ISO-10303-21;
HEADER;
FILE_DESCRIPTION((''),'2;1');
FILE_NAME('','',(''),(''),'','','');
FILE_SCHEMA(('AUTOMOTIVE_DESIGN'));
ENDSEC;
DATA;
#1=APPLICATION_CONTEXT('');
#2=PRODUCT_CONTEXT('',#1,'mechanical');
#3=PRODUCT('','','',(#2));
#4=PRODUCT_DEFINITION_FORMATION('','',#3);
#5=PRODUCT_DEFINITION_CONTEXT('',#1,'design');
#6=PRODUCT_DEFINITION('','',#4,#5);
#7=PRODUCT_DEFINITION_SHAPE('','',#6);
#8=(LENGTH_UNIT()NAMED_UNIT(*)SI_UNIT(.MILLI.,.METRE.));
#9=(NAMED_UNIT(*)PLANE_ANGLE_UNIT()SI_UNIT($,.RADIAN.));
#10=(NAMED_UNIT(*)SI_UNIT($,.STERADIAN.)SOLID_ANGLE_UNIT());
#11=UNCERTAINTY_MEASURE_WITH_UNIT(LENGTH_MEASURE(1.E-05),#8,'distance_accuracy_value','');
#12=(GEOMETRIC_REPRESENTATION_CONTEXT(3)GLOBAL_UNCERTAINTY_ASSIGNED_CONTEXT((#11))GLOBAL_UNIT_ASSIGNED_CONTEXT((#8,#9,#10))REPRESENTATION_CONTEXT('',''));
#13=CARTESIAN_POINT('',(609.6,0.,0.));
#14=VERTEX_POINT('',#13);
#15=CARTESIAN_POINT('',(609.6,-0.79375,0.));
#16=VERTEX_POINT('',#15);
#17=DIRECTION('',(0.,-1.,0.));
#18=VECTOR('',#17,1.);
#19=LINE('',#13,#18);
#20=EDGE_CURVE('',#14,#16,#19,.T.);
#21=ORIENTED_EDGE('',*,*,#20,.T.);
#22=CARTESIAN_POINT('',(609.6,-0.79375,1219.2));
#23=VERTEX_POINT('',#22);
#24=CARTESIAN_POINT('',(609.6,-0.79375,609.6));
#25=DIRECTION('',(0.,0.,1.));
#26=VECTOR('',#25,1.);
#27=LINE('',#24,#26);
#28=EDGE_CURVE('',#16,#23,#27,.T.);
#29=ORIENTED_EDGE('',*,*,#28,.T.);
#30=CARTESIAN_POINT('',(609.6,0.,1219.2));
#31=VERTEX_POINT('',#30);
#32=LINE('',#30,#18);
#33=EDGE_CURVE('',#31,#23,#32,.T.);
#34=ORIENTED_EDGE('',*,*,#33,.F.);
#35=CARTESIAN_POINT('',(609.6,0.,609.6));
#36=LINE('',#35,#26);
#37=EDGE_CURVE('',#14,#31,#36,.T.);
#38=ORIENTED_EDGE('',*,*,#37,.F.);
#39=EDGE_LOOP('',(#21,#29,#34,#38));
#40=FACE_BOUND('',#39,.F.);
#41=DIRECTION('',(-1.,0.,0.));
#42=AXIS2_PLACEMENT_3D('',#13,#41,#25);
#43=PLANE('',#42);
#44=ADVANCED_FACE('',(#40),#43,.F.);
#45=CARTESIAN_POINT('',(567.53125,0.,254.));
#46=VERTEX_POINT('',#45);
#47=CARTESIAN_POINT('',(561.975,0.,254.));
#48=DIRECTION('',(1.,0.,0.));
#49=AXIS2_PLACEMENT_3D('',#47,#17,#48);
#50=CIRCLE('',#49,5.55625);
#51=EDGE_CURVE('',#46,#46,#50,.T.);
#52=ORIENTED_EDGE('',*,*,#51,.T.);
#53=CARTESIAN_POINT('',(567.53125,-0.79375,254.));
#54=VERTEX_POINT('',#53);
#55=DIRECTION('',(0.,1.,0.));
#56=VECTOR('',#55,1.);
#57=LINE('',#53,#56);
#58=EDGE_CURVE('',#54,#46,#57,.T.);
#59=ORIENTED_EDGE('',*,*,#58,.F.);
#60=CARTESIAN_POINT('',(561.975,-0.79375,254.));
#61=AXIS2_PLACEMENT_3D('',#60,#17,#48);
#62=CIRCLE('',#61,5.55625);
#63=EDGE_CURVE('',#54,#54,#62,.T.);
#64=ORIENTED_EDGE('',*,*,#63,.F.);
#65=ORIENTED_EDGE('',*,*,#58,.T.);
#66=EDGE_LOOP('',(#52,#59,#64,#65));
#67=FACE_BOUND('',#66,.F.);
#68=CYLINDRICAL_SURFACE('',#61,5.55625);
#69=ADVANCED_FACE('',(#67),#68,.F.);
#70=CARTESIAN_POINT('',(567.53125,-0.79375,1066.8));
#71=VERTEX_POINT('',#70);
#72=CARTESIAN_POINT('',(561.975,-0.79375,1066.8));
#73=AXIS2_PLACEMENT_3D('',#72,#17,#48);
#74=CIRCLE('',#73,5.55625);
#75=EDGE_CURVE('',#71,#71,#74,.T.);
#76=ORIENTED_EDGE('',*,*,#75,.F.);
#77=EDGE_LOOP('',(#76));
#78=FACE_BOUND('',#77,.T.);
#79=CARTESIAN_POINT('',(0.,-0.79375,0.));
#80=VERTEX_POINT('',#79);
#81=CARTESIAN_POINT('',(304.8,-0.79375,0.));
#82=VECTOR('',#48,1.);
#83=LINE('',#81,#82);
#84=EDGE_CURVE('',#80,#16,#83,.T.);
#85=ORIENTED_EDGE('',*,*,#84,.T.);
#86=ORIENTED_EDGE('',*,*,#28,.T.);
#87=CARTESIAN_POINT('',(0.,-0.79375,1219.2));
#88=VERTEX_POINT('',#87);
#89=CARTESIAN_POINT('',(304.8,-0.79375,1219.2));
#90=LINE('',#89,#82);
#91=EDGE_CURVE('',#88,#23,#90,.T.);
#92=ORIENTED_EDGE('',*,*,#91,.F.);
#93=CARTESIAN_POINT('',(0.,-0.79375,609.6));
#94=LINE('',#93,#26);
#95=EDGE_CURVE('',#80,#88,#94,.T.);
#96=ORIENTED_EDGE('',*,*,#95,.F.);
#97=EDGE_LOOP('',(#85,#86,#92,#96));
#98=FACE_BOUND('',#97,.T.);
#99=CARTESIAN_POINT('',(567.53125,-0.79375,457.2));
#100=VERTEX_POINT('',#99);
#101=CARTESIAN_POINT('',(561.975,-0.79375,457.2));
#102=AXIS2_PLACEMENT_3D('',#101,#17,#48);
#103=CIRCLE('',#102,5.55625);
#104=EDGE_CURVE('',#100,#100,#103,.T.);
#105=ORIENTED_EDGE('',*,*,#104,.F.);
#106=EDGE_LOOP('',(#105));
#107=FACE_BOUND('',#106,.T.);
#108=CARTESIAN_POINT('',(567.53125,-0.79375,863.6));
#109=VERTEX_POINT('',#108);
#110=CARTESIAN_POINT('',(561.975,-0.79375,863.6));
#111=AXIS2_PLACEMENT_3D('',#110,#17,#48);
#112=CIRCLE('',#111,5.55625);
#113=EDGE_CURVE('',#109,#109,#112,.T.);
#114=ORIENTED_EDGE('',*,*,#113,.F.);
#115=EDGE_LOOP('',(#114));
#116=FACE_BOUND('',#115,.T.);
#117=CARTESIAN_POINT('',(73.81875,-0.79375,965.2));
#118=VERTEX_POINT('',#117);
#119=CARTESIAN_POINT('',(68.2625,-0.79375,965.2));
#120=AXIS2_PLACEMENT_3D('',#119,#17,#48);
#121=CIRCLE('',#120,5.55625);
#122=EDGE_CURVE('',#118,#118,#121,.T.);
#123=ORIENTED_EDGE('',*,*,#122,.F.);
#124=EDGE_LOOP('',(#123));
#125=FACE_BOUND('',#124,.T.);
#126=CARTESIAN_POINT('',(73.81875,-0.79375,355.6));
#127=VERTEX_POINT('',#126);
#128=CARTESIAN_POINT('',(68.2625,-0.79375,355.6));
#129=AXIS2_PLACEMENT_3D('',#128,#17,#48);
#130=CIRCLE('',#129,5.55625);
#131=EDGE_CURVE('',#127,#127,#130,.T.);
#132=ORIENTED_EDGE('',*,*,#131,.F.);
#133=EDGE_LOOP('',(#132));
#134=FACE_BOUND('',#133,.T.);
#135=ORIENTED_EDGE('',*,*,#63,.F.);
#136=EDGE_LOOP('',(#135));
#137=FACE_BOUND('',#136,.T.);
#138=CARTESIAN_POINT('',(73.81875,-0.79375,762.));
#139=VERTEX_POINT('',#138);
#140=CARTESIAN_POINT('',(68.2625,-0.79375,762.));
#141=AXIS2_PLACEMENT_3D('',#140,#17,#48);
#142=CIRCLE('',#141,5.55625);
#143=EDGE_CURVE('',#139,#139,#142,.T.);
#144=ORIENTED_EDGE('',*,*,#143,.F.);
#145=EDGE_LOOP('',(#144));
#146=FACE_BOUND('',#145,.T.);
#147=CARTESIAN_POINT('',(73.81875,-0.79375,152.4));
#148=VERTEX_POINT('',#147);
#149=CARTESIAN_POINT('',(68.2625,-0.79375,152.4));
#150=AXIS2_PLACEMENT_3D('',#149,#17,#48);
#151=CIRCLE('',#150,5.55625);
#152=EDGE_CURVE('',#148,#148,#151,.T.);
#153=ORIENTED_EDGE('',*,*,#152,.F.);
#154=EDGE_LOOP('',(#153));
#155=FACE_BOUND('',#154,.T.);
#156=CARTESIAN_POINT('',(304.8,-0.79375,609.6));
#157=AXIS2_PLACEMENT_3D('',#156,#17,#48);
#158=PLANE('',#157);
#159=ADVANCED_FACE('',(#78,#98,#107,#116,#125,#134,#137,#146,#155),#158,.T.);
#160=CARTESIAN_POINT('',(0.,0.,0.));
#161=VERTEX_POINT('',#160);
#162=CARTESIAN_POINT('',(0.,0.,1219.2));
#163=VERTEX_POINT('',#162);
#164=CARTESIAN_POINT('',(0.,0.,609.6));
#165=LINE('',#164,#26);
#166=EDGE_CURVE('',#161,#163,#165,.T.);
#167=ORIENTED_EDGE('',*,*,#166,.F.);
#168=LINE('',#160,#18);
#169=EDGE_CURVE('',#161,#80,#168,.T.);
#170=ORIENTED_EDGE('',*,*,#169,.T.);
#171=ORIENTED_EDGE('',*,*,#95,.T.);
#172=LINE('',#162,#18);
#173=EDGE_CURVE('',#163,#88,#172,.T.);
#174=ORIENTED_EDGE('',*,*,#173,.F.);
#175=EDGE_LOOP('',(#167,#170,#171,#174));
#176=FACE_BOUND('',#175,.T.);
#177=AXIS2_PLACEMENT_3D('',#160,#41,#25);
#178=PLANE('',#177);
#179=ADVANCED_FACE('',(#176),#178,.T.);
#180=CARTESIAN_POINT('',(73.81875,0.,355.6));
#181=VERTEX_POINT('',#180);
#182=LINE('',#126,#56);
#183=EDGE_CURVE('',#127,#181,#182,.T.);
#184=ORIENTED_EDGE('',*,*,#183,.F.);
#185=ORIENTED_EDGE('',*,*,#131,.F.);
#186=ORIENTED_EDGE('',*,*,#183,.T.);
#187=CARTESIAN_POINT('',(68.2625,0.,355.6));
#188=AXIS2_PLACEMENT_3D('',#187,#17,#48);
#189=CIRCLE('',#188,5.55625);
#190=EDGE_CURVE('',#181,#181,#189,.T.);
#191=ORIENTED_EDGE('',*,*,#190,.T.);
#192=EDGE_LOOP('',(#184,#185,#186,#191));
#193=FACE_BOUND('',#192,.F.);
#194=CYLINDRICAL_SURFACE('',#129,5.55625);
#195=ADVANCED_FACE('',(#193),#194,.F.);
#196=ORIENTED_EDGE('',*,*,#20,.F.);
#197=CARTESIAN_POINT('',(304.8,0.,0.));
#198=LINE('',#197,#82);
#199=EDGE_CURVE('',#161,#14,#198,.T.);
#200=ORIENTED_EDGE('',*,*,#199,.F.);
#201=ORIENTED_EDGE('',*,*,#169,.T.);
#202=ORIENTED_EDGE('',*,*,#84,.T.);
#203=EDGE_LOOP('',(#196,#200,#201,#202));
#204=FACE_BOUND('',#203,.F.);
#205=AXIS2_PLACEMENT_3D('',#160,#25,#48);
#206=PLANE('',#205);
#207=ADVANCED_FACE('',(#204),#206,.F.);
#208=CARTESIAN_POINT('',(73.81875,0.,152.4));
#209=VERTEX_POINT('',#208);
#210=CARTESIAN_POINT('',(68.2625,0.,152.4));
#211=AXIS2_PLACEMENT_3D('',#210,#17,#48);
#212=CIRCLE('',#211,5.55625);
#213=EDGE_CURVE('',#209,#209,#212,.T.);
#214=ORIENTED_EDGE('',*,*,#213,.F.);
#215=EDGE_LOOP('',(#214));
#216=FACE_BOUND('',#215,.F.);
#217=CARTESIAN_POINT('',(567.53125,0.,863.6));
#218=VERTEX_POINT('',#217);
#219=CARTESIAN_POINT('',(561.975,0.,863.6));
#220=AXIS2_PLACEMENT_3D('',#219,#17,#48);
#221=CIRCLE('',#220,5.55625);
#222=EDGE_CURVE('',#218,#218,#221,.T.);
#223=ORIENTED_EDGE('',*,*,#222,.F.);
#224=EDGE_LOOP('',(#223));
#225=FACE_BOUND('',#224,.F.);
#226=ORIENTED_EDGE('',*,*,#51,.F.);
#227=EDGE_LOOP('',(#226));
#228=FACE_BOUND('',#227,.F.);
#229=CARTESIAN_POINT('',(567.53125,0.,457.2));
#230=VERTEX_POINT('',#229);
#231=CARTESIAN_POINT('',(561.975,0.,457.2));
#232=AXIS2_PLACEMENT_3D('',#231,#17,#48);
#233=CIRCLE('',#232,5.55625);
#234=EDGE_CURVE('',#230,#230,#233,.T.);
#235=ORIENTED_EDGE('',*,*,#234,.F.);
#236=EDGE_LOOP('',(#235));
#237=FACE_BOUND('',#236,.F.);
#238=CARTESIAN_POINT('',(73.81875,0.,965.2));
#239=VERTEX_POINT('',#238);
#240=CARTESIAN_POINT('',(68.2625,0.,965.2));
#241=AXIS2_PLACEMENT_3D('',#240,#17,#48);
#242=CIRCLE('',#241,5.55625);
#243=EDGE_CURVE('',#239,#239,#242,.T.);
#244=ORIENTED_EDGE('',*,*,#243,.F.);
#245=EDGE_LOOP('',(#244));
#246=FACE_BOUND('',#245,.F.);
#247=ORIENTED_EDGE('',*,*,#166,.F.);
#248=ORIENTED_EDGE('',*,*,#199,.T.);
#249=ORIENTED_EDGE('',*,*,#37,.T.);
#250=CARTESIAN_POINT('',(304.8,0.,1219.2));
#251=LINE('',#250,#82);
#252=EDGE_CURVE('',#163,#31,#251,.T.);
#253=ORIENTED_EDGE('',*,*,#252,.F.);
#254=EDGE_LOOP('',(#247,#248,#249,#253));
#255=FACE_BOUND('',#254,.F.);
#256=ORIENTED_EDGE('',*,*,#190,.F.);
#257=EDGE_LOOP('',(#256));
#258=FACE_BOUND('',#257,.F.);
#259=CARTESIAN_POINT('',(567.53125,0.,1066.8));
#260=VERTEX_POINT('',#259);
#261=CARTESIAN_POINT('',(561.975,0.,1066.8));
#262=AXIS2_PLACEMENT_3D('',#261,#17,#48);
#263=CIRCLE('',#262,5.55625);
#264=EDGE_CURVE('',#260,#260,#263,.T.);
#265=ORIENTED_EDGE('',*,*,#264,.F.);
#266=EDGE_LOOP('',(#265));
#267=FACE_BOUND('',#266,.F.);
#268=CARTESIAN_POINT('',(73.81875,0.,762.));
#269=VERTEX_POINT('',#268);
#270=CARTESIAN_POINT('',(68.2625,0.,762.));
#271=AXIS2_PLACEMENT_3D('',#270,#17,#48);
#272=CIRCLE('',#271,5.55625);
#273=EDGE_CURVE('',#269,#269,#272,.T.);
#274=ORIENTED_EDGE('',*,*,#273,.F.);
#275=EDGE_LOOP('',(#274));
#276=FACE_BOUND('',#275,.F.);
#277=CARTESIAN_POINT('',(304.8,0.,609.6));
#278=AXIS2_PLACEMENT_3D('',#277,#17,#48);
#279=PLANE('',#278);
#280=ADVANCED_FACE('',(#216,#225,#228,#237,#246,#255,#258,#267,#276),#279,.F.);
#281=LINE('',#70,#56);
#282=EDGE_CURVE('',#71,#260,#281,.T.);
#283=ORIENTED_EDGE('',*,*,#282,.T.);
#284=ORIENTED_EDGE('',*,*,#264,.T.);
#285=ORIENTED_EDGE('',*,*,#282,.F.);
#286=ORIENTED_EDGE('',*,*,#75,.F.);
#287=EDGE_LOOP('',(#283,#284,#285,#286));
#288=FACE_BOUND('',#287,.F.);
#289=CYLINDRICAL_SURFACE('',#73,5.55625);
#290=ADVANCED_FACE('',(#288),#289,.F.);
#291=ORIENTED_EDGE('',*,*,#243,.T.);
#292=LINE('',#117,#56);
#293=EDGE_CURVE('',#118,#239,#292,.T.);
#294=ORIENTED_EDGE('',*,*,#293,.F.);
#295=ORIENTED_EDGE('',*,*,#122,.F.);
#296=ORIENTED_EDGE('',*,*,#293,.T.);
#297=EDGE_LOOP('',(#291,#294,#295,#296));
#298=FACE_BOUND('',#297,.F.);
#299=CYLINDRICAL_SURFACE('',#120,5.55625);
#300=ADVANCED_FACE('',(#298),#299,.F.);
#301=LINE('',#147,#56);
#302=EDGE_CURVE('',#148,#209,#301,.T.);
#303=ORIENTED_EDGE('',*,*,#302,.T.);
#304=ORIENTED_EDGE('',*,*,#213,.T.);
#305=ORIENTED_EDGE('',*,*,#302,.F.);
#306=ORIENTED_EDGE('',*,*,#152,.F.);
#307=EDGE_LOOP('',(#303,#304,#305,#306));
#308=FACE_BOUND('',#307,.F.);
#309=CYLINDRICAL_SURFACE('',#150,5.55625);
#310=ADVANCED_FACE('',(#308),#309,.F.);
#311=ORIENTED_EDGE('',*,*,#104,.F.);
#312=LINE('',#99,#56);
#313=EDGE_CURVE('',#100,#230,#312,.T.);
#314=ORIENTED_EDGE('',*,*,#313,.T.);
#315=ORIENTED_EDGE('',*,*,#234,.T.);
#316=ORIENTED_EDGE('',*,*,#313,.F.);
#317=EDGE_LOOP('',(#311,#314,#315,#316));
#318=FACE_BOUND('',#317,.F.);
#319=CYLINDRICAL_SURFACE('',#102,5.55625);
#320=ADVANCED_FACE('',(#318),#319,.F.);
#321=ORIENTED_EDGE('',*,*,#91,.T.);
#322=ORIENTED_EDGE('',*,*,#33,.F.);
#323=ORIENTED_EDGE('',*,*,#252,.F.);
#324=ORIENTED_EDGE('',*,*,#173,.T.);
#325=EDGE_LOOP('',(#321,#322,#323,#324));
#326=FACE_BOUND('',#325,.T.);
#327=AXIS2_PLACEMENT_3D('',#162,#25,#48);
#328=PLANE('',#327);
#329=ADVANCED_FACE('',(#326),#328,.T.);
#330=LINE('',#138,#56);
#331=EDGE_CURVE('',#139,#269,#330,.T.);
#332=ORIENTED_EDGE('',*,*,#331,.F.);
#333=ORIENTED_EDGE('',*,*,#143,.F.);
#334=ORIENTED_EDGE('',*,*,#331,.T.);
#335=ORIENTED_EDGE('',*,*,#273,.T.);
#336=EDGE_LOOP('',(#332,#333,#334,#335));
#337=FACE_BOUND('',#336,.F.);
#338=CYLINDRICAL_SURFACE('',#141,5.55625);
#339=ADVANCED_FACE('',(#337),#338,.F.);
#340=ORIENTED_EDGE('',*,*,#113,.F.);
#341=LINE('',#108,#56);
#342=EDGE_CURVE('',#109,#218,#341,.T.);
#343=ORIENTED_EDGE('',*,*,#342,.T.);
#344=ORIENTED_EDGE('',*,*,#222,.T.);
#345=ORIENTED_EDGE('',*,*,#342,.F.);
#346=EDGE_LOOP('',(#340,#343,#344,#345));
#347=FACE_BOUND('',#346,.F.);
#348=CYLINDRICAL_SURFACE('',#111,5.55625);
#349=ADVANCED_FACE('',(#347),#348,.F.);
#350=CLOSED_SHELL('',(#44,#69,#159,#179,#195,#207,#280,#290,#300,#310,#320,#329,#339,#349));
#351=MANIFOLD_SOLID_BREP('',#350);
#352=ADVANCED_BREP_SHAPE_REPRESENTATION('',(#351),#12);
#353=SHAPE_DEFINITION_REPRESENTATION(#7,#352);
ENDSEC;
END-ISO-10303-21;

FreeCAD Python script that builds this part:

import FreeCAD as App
import Part
import Sketcher
Q = App.Units.Quantity


def add_polygon(sketch, points):
    """Adds a closed chain of lines whose ends are joined by coincident constraints."""
    first, n = sketch.GeometryCount, len(points)
    for a, b in zip(points, points[1:] + points[:1]):
        sketch.addGeometry(Part.LineSegment(App.Vector(*a, 0), App.Vector(*b, 0)), False)
    for i in range(n):
        sketch.addConstraint(Sketcher.Constraint("Coincident", first + i, 2, first + (i + 1) % n, 1))

doc = App.newDocument("Part")
params = doc.addObject("Spreadsheet::Sheet", "Params")
for row, (alias, value) in enumerate([
    ("sketch1_width", "24 in"),
    ("sketch1_height", "48 in"),
    ("pad1_length", "0.03125 in"),
    ("sketch2_diameter", "0.4375 in"),
    ("pocket1_length", "1 in"),
], start=1):
    params.set(f"A{row}", alias)
    params.set(f"B{row}", "=" + value)
    params.setAlias(f"B{row}", alias)

body = doc.addObject("PartDesign::Body", "Body")

sketch1 = body.newObject("Sketcher::SketchObject", "Sketch")
sketch1.AttachmentSupport = (doc.getObject("XZ_Plane"), [""])
sketch1.MapMode = "FlatFace"
add_polygon(sketch1, [(0, 1219), (0, 0), (610, 0), (610, 1219)])
sketch1.addConstraint([
    Sketcher.Constraint("Vertical", 0),
    Sketcher.Constraint("Horizontal", 1),
    Sketcher.Constraint("Vertical", 2),
    Sketcher.Constraint("Horizontal", 3),
    Sketcher.Constraint("Coincident", 0, 2, -1, 1),
    Sketcher.Constraint("DistanceX", 1, 1, 1, 2, Q("24 in")),
    Sketcher.Constraint("DistanceY", 0, 2, 0, 1, Q("48 in")),
])
sketch1.setExpression("Constraints[9]", "Params.sketch1_width")
sketch1.setExpression("Constraints[10]", "Params.sketch1_height")
pad1 = body.newObject("PartDesign::Pad", "Pad")
pad1.Profile = sketch1
pad1.setExpression("Length", "Params.pad1_length")

sketch2 = body.newObject("Sketcher::SketchObject", "Sketch001")
sketch2.AttachmentSupport = (doc.getObject("XZ_Plane"), [""])
sketch2.MapMode = "FlatFace"
sketch2.AttachmentOffset = App.Placement(App.Vector(0, 0, 0.03125 * 25.4), App.Rotation())
sketch2.addGeometry([
    Part.Circle(App.Vector(68, 152, 0), App.Vector(0, 0, 1), 6),
    Part.Circle(App.Vector(68, 356, 0), App.Vector(0, 0, 1), 6),
    Part.Circle(App.Vector(562, 864, 0), App.Vector(0, 0, 1), 6),
    Part.Circle(App.Vector(562, 1067, 0), App.Vector(0, 0, 1), 6),
    Part.Circle(App.Vector(68, 762, 0), App.Vector(0, 0, 1), 6),
    Part.Circle(App.Vector(68, 965, 0), App.Vector(0, 0, 1), 6),
    Part.Circle(App.Vector(562, 254, 0), App.Vector(0, 0, 1), 6),
    Part.Circle(App.Vector(562, 457, 0), App.Vector(0, 0, 1), 6),
], False)
sketch2.addConstraint([
    Sketcher.Constraint("Equal", 0, 1),
    Sketcher.Constraint("Equal", 1, 2),
    Sketcher.Constraint("Equal", 2, 3),
    Sketcher.Constraint("Equal", 3, 4),
    Sketcher.Constraint("Equal", 4, 5),
    Sketcher.Constraint("Equal", 5, 6),
    Sketcher.Constraint("Equal", 6, 7),
    Sketcher.Constraint("Vertical", 0, 3, 1, 3),
    Sketcher.Constraint("Vertical", 2, 3, 3, 3),
    Sketcher.Constraint("Vertical", 1, 3, 4, 3),
    Sketcher.Constraint("Vertical", 4, 3, 5, 3),
    Sketcher.Constraint("Vertical", 3, 3, 6, 3),
    Sketcher.Constraint("Vertical", 6, 3, 7, 3),
    Sketcher.Constraint("Diameter", 0, Q("0.4375 in")),
    Sketcher.Constraint("DistanceY", -1, 1, 0, 3, Q("6 in")),
    Sketcher.Constraint("DistanceY", -1, 1, 1, 3, Q("14 in")),
    Sketcher.Constraint("DistanceY", -1, 1, 2, 3, Q("34 in")),
    Sketcher.Constraint("DistanceY", -1, 1, 3, 3, Q("42 in")),
    Sketcher.Constraint("DistanceY", -1, 1, 4, 3, Q("30 in")),
    Sketcher.Constraint("DistanceY", -1, 1, 5, 3, Q("38 in")),
    Sketcher.Constraint("DistanceY", -1, 1, 6, 3, Q("10 in")),
    Sketcher.Constraint("DistanceY", -1, 1, 7, 3, Q("18 in")),
    Sketcher.Constraint("DistanceX", -1, 1, 0, 3, Q("2.6875 in")),
    Sketcher.Constraint("DistanceX", -1, 1, 2, 3, Q("22.125 in")),
])
sketch2.setExpression("Constraints[13]", "Params.sketch2_diameter")
pocket1 = body.newObject("PartDesign::Pocket", "Pocket")
pocket1.Profile = sketch2
pocket1.setExpression("Length", "Params.pocket1_length")

doc.recompute()
